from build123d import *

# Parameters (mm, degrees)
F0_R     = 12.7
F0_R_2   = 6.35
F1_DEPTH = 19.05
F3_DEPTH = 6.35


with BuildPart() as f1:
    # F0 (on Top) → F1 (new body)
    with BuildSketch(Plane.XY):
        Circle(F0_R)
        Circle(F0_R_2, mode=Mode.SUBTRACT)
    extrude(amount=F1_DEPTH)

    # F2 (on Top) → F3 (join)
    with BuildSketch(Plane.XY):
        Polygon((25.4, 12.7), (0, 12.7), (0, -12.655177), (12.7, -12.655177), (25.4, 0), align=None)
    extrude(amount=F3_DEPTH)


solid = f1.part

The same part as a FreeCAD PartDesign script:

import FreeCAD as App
import Part
import Sketcher
from FreeCAD import Vector
Q = App.Units.Quantity


def add_polygon(sketch, points):
    """Adds a closed chain of lines whose ends are joined by coincident constraints."""
    first, n = sketch.GeometryCount, len(points)
    for a, b in zip(points, points[1:] + points[:1]):
        sketch.addGeometry(Part.LineSegment(App.Vector(*a, 0), App.Vector(*b, 0)), False)
    for i in range(n):
        sketch.addConstraint(Sketcher.Constraint("Coincident", first + i, 2, first + (i + 1) % n, 1))

doc = App.newDocument("Part")
params = doc.addObject("Spreadsheet::Sheet", "Params")
for row, (alias, value) in enumerate([
    ("sketch1_diameter", "1 in"),
    ("sketch1_diameter2", "0.5 in"),
    ("pad1_length", "0.75 in"),
    ("sketch2_width", "1 in"),
    ("sketch2_width2", "0.5 in"),
    ("pad2_length", "0.25 in"),
], start=1):
    params.set(f"A{row}", alias)
    params.set(f"B{row}", "=" + value)
    params.setAlias(f"B{row}", alias)

body = doc.addObject("PartDesign::Body", "Body")

# Sketch on XY plane
sketch1 = body.newObject("Sketcher::SketchObject", "Sketch")
sketch1.AttachmentSupport = (doc.getObject("XY_Plane"), [""])
sketch1.MapMode = "FlatFace"
sketch1.addGeometry(Part.Circle(Vector(0, 0, 0), Vector(0, 0, 1), 13), False)
sketch1.addGeometry(Part.Circle(Vector(0, 0, 0), Vector(0, 0, 1), 6), False)
sketch1.addConstraint(Sketcher.Constraint("Coincident", 0, 3, -1, 1))
sketch1.addConstraint(Sketcher.Constraint("Coincident", 1, 3, -1, 1))
sketch1.addConstraint(Sketcher.Constraint("Diameter", 0, Q("1 in")))
sketch1.addConstraint(Sketcher.Constraint("Diameter", 1, Q("0.5 in")))
sketch1.setExpression("Constraints[2]", "Params.sketch1_diameter")
sketch1.setExpression("Constraints[3]", "Params.sketch1_diameter2")
pad1 = body.newObject("PartDesign::Pad", "Pad")
pad1.Profile = sketch1
pad1.setExpression("Length", "Params.pad1_length")

# Sketch on XY plane
sketch2 = body.newObject("Sketcher::SketchObject", "Sketch001")
sketch2.AttachmentSupport = (doc.getObject("XY_Plane"), [""])
sketch2.MapMode = "FlatFace"
add_polygon(sketch2, [(25, 13), (0, 13), (0, -13), (13, -13), (25, 0)])  # lines 0-4
sketch2.addConstraint(Sketcher.Constraint("Horizontal", 0))
sketch2.addConstraint(Sketcher.Constraint("Vertical", 1))
sketch2.addConstraint(Sketcher.Constraint("Horizontal", 2))
sketch2.addConstraint(Sketcher.Constraint("Vertical", 4))
sketch2.addConstraint(Sketcher.Constraint("PointOnObject", 0, 2, -2))
sketch2.addConstraint(Sketcher.Constraint("PointOnObject", 3, 2, -1))
sketch2.addConstraint(Sketcher.Constraint("Equal", 2, 4))
sketch2.addConstraint(Sketcher.Constraint("DistanceX", 0, 2, 0, 1, Q("1 in")))
sketch2.addConstraint(Sketcher.Constraint("DistanceX", 2, 1, 2, 2, Q("0.5 in")))
sketch2.addConstraint(Sketcher.Constraint("DistanceY", 1, 2, 1, 1, Q("25.355177 mm")))
sketch2.setExpression("Constraints[12]", "Params.sketch2_width")
sketch2.setExpression("Constraints[13]", "Params.sketch2_width2")
pad2 = body.newObject("PartDesign::Pad", "Pad001")
pad2.Profile = sketch2
pad2.setExpression("Length", "Params.pad2_length")

doc.recompute()
